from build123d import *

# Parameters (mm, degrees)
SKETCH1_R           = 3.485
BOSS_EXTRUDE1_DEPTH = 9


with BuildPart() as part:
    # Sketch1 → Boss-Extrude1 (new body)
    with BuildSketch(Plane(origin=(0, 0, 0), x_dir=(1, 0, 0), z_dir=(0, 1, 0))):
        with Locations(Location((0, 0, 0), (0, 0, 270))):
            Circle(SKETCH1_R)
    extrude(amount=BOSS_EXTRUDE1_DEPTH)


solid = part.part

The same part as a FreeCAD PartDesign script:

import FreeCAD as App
import Part
import Sketcher
Q = App.Units.Quantity

doc = App.newDocument("Part")
body = doc.addObject("PartDesign::Body", "Body")

# Sketch on XZ plane
sketch1 = doc.addObject("Sketcher::SketchObject", "Sketch")
body.addObject(sketch1)
sketch1.AttachmentSupport = (doc.XZ_Plane, [""])
sketch1.MapMode = "FlatFace"
sketch1.addGeometry(Part.Circle(App.Vector(0, 0, 0), App.Vector(0, 0, 1), 3.5), False)
sketch1.addConstraint([
    Sketcher.Constraint("Coincident", 0, 3, -1, 1),
    Sketcher.Constraint("Diameter", 0, Q("6.97 mm")),
])
pad1 = doc.addObject("PartDesign::Pad", "Pad")
body.addObject(pad1)
pad1.Profile = sketch1
pad1.Length = 9
pad1.Reversed = True

doc.recompute()
